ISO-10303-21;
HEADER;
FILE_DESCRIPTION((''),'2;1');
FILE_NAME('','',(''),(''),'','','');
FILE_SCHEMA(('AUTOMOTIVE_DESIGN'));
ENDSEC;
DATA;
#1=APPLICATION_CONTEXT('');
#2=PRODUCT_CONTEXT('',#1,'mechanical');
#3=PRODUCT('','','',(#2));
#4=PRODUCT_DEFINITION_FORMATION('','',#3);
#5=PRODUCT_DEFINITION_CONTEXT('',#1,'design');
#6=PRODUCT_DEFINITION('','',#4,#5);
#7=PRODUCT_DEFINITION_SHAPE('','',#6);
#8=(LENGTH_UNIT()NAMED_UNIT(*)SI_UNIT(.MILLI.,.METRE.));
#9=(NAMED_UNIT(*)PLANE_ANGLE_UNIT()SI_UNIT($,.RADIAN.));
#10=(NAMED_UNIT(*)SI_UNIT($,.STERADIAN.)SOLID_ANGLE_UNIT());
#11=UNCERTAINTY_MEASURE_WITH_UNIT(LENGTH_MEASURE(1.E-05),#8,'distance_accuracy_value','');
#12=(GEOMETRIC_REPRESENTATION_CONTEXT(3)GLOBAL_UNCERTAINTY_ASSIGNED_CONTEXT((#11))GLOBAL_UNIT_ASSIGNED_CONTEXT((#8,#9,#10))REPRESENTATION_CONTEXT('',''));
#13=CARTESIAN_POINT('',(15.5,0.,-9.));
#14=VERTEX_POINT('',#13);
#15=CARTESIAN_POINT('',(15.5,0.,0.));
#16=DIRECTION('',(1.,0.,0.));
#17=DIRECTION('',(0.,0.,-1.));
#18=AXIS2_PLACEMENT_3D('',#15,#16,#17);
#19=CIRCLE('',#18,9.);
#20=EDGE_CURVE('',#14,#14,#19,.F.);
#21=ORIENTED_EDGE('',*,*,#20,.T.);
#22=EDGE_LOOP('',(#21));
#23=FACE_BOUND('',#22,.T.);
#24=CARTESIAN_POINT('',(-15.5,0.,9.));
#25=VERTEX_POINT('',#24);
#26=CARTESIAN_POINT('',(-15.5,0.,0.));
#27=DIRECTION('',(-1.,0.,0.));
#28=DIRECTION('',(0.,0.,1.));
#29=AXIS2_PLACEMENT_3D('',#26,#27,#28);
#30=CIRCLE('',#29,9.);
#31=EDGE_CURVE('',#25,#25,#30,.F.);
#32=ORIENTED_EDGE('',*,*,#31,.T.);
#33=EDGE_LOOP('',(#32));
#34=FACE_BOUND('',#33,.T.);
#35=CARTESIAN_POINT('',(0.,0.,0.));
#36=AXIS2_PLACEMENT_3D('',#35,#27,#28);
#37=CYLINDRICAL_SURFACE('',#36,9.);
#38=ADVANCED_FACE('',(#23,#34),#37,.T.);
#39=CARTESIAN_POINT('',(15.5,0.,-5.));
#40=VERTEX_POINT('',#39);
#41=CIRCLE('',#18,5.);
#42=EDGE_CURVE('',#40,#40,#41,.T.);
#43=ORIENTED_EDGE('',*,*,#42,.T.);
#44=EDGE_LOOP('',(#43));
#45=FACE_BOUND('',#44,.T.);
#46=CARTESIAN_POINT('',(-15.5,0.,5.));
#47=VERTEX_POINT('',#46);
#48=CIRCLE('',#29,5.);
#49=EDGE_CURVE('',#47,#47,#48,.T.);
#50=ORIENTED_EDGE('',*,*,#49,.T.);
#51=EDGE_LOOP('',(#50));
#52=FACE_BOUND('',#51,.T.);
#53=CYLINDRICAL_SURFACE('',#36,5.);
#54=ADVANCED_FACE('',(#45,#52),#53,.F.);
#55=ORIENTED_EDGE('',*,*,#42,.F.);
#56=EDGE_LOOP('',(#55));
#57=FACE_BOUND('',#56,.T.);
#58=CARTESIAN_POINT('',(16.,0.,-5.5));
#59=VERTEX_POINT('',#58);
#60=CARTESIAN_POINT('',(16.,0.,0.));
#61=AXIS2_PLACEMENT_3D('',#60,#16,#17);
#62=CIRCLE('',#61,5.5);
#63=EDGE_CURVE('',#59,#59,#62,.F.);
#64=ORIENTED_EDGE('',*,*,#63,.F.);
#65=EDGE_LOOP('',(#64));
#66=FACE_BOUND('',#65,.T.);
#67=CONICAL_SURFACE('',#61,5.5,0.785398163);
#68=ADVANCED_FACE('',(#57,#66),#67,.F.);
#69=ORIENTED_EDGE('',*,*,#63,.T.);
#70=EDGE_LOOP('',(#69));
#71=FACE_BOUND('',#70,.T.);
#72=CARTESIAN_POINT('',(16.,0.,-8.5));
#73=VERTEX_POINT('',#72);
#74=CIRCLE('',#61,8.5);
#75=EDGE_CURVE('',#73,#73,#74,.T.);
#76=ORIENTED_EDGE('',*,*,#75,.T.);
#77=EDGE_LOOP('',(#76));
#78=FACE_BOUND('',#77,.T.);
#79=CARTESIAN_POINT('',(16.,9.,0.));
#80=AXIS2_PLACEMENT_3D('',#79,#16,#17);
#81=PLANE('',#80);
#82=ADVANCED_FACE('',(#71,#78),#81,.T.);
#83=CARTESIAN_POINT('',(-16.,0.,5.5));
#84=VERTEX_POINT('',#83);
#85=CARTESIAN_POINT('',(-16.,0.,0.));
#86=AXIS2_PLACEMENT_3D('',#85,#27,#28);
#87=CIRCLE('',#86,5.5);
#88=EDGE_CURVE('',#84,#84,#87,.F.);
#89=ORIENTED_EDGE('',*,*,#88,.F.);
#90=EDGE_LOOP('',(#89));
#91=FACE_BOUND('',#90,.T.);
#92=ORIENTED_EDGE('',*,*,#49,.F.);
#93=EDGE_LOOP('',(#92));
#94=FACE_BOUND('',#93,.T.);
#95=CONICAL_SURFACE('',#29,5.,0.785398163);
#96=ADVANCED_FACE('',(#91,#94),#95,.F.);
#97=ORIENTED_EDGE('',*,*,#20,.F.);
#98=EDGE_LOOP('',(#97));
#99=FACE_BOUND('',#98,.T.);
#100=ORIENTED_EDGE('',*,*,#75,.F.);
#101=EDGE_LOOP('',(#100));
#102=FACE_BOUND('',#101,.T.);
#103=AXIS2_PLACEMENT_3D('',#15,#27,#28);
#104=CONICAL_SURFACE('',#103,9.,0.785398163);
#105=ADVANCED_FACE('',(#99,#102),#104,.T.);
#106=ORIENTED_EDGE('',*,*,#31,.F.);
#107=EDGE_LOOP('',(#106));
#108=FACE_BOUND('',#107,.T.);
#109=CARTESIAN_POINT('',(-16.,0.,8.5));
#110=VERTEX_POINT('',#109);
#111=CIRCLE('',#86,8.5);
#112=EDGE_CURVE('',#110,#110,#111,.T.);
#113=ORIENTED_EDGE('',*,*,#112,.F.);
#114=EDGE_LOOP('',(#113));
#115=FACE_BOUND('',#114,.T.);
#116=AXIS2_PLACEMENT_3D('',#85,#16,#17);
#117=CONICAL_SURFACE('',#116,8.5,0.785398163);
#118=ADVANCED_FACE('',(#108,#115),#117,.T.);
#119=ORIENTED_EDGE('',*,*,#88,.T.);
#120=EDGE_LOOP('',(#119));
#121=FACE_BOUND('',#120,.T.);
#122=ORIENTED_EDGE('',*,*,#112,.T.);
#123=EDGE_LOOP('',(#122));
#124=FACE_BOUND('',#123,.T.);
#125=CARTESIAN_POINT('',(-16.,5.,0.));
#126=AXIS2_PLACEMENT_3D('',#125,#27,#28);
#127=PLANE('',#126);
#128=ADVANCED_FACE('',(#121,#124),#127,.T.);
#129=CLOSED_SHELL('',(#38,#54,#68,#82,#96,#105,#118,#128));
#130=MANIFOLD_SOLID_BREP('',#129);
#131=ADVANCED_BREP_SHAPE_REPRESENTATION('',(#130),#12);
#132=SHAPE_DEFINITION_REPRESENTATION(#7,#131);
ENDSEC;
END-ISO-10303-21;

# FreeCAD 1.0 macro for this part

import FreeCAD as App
import Part
import Sketcher

V = App.Vector


def edges_at(feature, points):
    """Names of the edges that pass closest to the given points."""
    edges = feature.Shape.Edges
    near = lambda p: min(range(len(edges)), key=lambda i: edges[i].distToShape(Part.Vertex(*p))[0])
    return sorted({f"Edge{near(p) + 1}" for p in points})


def add_polygon(sketch, points):
    """Adds a closed chain of lines whose ends are joined by coincident constraints."""
    first, n = sketch.GeometryCount, len(points)
    for a, b in zip(points, points[1:] + points[:1]):
        sketch.addGeometry(Part.LineSegment(App.Vector(*a, 0), App.Vector(*b, 0)), False)
    for i in range(n):
        sketch.addConstraint(Sketcher.Constraint("Coincident", first + i, 2, first + (i + 1) % n, 1))

doc = App.newDocument("Part")
body = doc.addObject("PartDesign::Body", "Body")

# Sketch on XY plane
sketch1 = body.newObject("Sketcher::SketchObject", "Sketch")
sketch1.AttachmentSupport = (doc.getObject("XY_Plane"), [""])
sketch1.MapMode = "FlatFace"
add_polygon(sketch1, [(-16, 9), (-16, 5), (16, 5), (16, 9)])  # lines 0-3
sketch1.addConstraint([
    Sketcher.Constraint("Vertical", 0),
    Sketcher.Constraint("Horizontal", 1),
    Sketcher.Constraint("Vertical", 2),
    Sketcher.Constraint("Horizontal", 3),
    Sketcher.Constraint("DistanceX", 1, 1, 1, 2, 32.0),
    Sketcher.Constraint("DistanceY", 0, 2, 0, 1, 4.0),
    Sketcher.Constraint("DistanceX", 0, 2, -1, 1, 16.0),
    Sketcher.Constraint("DistanceY", -1, 1, 0, 2, 5.0),
])
revolution = body.newObject("PartDesign::Revolution", "Revolution")
revolution.Profile = sketch1
revolution.ReferenceAxis = (sketch1, ["H_Axis"])
revolution.Angle = 360
doc.recompute()

chamfer = body.newObject("PartDesign::Chamfer", "Chamfer")
chamfer.Base = (revolution, edges_at(revolution, [
    (-16, 0, -9),
    (16, 0, -9),
    (16, 0, -5),
    (-16, 0, -5),
]))
chamfer.Size = 0.5

doc.recompute()
